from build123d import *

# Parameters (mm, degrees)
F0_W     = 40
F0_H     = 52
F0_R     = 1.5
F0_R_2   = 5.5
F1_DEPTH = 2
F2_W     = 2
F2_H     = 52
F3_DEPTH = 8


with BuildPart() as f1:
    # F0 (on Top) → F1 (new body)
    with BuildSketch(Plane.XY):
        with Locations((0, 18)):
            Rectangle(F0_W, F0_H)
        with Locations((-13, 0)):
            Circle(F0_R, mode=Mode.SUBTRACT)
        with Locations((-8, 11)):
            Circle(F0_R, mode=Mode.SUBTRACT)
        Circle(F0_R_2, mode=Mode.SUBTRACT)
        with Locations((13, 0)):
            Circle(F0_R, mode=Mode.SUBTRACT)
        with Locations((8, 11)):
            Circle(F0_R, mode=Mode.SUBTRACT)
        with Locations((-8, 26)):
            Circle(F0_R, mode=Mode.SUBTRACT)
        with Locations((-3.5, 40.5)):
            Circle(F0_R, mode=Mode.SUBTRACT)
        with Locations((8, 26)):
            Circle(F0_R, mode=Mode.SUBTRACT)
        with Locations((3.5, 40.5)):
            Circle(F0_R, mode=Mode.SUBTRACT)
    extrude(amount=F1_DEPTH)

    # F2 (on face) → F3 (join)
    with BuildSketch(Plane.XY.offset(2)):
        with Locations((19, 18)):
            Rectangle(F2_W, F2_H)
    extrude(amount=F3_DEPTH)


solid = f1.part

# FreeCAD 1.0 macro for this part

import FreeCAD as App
import Part
import Sketcher

V = App.Vector

doc = App.newDocument("Part")
body = doc.addObject("PartDesign::Body", "Body")

sketch1 = doc.addObject("Sketcher::SketchObject", "Sketch")
body.addObject(sketch1)
sketch1.AttachmentSupport = (doc.XY_Plane, [""])
sketch1.MapMode = "FlatFace"
sketch1.addGeometry(Part.LineSegment(V(-20, 44, 0), V(-20, -8, 0)), False)
sketch1.addGeometry(Part.LineSegment(V(-20, -8, 0), V(20, -8, 0)), False)
sketch1.addGeometry(Part.LineSegment(V(20, -8, 0), V(20, 44, 0)), False)
sketch1.addGeometry(Part.LineSegment(V(20, 44, 0), V(-20, 44, 0)), False)
sketch1.addGeometry(Part.Circle(V(-13, 0, 0), V(0, 0, 1), 1.5), False)
sketch1.addGeometry(Part.Circle(V(-8, 11, 0), V(0, 0, 1), 1.5), False)
sketch1.addGeometry(Part.Circle(V(0, 0, 0), V(0, 0, 1), 5.5), False)
sketch1.addGeometry(Part.Circle(V(13, 0, 0), V(0, 0, 1), 1.5), False)
sketch1.addGeometry(Part.Circle(V(8, 11, 0), V(0, 0, 1), 1.5), False)
sketch1.addGeometry(Part.Circle(V(-8, 26, 0), V(0, 0, 1), 1.5), False)
sketch1.addGeometry(Part.Circle(V(-3.5, 40.5, 0), V(0, 0, 1), 1.5), False)
sketch1.addGeometry(Part.Circle(V(8, 26, 0), V(0, 0, 1), 1.5), False)
sketch1.addGeometry(Part.Circle(V(3.5, 40.5, 0), V(0, 0, 1), 1.5), False)
sketch1.addConstraint(Sketcher.Constraint("Coincident", 0, 2, 1, 1))
sketch1.addConstraint(Sketcher.Constraint("Coincident", 1, 2, 2, 1))
sketch1.addConstraint(Sketcher.Constraint("Coincident", 2, 2, 3, 1))
sketch1.addConstraint(Sketcher.Constraint("Coincident", 3, 2, 0, 1))
sketch1.addConstraint(Sketcher.Constraint("Vertical", 0))
sketch1.addConstraint(Sketcher.Constraint("Horizontal", 1))
sketch1.addConstraint(Sketcher.Constraint("Vertical", 2))
sketch1.addConstraint(Sketcher.Constraint("Horizontal", 3))
sketch1.addConstraint(Sketcher.Constraint("Coincident", 6, 3, -1, 1))
sketch1.addConstraint(Sketcher.Constraint("Equal", 4, 5))
sketch1.addConstraint(Sketcher.Constraint("Equal", 5, 7))
sketch1.addConstraint(Sketcher.Constraint("Equal", 7, 8))
sketch1.addConstraint(Sketcher.Constraint("Equal", 8, 9))
sketch1.addConstraint(Sketcher.Constraint("Equal", 9, 10))
sketch1.addConstraint(Sketcher.Constraint("Equal", 10, 11))
sketch1.addConstraint(Sketcher.Constraint("Equal", 11, 12))
sketch1.addConstraint(Sketcher.Constraint("Symmetric", 4, 3, 7, 3, -1, 1))
sketch1.addConstraint(Sketcher.Constraint("Symmetric", 5, 3, 8, 3, -2))
sketch1.addConstraint(Sketcher.Constraint("Symmetric", 9, 3, 11, 3, -2))
sketch1.addConstraint(Sketcher.Constraint("Symmetric", 10, 3, 12, 3, -2))
sketch1.addConstraint(Sketcher.Constraint("PointOnObject", 4, 3, -1))
sketch1.addConstraint(Sketcher.Constraint("Vertical", 5, 3, 9, 3))
sketch1.addConstraint(Sketcher.Constraint("Diameter", 4, 3.0))
sketch1.addConstraint(Sketcher.Constraint("Diameter", 6, 11.0))
sketch1.addConstraint(Sketcher.Constraint("DistanceX", 1, 1, 1, 2, 40.0))
sketch1.addConstraint(Sketcher.Constraint("DistanceY", 0, 2, 0, 1, 52.0))
sketch1.addConstraint(Sketcher.Constraint("DistanceX", 4, 3, -1, 1, 13.0))
sketch1.addConstraint(Sketcher.Constraint("DistanceX", 5, 3, -1, 1, 8.0))
sketch1.addConstraint(Sketcher.Constraint("DistanceY", -1, 1, 5, 3, 11.0))
sketch1.addConstraint(Sketcher.Constraint("DistanceY", -1, 1, 9, 3, 26.0))
sketch1.addConstraint(Sketcher.Constraint("DistanceX", 0, 2, -1, 1, 20.0))
sketch1.addConstraint(Sketcher.Constraint("DistanceY", 0, 2, -1, 1, 8.0))
sketch1.addConstraint(Sketcher.Constraint("DistanceX", 10, 3, 12, 3, 7.0))
sketch1.addConstraint(Sketcher.Constraint("DistanceY", -1, 1, 10, 3, 40.5))
pad1 = doc.addObject("PartDesign::Pad", "Pad")
body.addObject(pad1)
pad1.Profile = sketch1
pad1.Length = 2

sketch2 = doc.addObject("Sketcher::SketchObject", "Sketch001")
body.addObject(sketch2)
sketch2.AttachmentSupport = (doc.XY_Plane, [""])
sketch2.MapMode = "FlatFace"
sketch2.AttachmentOffset = App.Placement(V(0, 0, 2), App.Rotation())
sketch2.addGeometry(Part.LineSegment(V(18, 44, 0), V(18, -8, 0)), False)
sketch2.addGeometry(Part.LineSegment(V(18, -8, 0), V(20, -8, 0)), False)
sketch2.addGeometry(Part.LineSegment(V(20, -8, 0), V(20, 44, 0)), False)
sketch2.addGeometry(Part.LineSegment(V(20, 44, 0), V(18, 44, 0)), False)
sketch2.addConstraint(Sketcher.Constraint("Coincident", 0, 2, 1, 1))
sketch2.addConstraint(Sketcher.Constraint("Coincident", 1, 2, 2, 1))
sketch2.addConstraint(Sketcher.Constraint("Coincident", 2, 2, 3, 1))
sketch2.addConstraint(Sketcher.Constraint("Coincident", 3, 2, 0, 1))
sketch2.addConstraint(Sketcher.Constraint("Vertical", 0))
sketch2.addConstraint(Sketcher.Constraint("Horizontal", 1))
sketch2.addConstraint(Sketcher.Constraint("Vertical", 2))
sketch2.addConstraint(Sketcher.Constraint("Horizontal", 3))
sketch2.addConstraint(Sketcher.Constraint("DistanceX", 1, 1, 1, 2, 2.0))
sketch2.addConstraint(Sketcher.Constraint("DistanceY", 0, 2, 0, 1, 52.0))
sketch2.addConstraint(Sketcher.Constraint("DistanceX", -1, 1, 0, 2, 18.0))
sketch2.addConstraint(Sketcher.Constraint("DistanceY", 0, 2, -1, 1, 8.0))
pad2 = doc.addObject("PartDesign::Pad", "Pad001")
body.addObject(pad2)
pad2.Profile = sketch2
pad2.Length = 8

doc.recompute()
